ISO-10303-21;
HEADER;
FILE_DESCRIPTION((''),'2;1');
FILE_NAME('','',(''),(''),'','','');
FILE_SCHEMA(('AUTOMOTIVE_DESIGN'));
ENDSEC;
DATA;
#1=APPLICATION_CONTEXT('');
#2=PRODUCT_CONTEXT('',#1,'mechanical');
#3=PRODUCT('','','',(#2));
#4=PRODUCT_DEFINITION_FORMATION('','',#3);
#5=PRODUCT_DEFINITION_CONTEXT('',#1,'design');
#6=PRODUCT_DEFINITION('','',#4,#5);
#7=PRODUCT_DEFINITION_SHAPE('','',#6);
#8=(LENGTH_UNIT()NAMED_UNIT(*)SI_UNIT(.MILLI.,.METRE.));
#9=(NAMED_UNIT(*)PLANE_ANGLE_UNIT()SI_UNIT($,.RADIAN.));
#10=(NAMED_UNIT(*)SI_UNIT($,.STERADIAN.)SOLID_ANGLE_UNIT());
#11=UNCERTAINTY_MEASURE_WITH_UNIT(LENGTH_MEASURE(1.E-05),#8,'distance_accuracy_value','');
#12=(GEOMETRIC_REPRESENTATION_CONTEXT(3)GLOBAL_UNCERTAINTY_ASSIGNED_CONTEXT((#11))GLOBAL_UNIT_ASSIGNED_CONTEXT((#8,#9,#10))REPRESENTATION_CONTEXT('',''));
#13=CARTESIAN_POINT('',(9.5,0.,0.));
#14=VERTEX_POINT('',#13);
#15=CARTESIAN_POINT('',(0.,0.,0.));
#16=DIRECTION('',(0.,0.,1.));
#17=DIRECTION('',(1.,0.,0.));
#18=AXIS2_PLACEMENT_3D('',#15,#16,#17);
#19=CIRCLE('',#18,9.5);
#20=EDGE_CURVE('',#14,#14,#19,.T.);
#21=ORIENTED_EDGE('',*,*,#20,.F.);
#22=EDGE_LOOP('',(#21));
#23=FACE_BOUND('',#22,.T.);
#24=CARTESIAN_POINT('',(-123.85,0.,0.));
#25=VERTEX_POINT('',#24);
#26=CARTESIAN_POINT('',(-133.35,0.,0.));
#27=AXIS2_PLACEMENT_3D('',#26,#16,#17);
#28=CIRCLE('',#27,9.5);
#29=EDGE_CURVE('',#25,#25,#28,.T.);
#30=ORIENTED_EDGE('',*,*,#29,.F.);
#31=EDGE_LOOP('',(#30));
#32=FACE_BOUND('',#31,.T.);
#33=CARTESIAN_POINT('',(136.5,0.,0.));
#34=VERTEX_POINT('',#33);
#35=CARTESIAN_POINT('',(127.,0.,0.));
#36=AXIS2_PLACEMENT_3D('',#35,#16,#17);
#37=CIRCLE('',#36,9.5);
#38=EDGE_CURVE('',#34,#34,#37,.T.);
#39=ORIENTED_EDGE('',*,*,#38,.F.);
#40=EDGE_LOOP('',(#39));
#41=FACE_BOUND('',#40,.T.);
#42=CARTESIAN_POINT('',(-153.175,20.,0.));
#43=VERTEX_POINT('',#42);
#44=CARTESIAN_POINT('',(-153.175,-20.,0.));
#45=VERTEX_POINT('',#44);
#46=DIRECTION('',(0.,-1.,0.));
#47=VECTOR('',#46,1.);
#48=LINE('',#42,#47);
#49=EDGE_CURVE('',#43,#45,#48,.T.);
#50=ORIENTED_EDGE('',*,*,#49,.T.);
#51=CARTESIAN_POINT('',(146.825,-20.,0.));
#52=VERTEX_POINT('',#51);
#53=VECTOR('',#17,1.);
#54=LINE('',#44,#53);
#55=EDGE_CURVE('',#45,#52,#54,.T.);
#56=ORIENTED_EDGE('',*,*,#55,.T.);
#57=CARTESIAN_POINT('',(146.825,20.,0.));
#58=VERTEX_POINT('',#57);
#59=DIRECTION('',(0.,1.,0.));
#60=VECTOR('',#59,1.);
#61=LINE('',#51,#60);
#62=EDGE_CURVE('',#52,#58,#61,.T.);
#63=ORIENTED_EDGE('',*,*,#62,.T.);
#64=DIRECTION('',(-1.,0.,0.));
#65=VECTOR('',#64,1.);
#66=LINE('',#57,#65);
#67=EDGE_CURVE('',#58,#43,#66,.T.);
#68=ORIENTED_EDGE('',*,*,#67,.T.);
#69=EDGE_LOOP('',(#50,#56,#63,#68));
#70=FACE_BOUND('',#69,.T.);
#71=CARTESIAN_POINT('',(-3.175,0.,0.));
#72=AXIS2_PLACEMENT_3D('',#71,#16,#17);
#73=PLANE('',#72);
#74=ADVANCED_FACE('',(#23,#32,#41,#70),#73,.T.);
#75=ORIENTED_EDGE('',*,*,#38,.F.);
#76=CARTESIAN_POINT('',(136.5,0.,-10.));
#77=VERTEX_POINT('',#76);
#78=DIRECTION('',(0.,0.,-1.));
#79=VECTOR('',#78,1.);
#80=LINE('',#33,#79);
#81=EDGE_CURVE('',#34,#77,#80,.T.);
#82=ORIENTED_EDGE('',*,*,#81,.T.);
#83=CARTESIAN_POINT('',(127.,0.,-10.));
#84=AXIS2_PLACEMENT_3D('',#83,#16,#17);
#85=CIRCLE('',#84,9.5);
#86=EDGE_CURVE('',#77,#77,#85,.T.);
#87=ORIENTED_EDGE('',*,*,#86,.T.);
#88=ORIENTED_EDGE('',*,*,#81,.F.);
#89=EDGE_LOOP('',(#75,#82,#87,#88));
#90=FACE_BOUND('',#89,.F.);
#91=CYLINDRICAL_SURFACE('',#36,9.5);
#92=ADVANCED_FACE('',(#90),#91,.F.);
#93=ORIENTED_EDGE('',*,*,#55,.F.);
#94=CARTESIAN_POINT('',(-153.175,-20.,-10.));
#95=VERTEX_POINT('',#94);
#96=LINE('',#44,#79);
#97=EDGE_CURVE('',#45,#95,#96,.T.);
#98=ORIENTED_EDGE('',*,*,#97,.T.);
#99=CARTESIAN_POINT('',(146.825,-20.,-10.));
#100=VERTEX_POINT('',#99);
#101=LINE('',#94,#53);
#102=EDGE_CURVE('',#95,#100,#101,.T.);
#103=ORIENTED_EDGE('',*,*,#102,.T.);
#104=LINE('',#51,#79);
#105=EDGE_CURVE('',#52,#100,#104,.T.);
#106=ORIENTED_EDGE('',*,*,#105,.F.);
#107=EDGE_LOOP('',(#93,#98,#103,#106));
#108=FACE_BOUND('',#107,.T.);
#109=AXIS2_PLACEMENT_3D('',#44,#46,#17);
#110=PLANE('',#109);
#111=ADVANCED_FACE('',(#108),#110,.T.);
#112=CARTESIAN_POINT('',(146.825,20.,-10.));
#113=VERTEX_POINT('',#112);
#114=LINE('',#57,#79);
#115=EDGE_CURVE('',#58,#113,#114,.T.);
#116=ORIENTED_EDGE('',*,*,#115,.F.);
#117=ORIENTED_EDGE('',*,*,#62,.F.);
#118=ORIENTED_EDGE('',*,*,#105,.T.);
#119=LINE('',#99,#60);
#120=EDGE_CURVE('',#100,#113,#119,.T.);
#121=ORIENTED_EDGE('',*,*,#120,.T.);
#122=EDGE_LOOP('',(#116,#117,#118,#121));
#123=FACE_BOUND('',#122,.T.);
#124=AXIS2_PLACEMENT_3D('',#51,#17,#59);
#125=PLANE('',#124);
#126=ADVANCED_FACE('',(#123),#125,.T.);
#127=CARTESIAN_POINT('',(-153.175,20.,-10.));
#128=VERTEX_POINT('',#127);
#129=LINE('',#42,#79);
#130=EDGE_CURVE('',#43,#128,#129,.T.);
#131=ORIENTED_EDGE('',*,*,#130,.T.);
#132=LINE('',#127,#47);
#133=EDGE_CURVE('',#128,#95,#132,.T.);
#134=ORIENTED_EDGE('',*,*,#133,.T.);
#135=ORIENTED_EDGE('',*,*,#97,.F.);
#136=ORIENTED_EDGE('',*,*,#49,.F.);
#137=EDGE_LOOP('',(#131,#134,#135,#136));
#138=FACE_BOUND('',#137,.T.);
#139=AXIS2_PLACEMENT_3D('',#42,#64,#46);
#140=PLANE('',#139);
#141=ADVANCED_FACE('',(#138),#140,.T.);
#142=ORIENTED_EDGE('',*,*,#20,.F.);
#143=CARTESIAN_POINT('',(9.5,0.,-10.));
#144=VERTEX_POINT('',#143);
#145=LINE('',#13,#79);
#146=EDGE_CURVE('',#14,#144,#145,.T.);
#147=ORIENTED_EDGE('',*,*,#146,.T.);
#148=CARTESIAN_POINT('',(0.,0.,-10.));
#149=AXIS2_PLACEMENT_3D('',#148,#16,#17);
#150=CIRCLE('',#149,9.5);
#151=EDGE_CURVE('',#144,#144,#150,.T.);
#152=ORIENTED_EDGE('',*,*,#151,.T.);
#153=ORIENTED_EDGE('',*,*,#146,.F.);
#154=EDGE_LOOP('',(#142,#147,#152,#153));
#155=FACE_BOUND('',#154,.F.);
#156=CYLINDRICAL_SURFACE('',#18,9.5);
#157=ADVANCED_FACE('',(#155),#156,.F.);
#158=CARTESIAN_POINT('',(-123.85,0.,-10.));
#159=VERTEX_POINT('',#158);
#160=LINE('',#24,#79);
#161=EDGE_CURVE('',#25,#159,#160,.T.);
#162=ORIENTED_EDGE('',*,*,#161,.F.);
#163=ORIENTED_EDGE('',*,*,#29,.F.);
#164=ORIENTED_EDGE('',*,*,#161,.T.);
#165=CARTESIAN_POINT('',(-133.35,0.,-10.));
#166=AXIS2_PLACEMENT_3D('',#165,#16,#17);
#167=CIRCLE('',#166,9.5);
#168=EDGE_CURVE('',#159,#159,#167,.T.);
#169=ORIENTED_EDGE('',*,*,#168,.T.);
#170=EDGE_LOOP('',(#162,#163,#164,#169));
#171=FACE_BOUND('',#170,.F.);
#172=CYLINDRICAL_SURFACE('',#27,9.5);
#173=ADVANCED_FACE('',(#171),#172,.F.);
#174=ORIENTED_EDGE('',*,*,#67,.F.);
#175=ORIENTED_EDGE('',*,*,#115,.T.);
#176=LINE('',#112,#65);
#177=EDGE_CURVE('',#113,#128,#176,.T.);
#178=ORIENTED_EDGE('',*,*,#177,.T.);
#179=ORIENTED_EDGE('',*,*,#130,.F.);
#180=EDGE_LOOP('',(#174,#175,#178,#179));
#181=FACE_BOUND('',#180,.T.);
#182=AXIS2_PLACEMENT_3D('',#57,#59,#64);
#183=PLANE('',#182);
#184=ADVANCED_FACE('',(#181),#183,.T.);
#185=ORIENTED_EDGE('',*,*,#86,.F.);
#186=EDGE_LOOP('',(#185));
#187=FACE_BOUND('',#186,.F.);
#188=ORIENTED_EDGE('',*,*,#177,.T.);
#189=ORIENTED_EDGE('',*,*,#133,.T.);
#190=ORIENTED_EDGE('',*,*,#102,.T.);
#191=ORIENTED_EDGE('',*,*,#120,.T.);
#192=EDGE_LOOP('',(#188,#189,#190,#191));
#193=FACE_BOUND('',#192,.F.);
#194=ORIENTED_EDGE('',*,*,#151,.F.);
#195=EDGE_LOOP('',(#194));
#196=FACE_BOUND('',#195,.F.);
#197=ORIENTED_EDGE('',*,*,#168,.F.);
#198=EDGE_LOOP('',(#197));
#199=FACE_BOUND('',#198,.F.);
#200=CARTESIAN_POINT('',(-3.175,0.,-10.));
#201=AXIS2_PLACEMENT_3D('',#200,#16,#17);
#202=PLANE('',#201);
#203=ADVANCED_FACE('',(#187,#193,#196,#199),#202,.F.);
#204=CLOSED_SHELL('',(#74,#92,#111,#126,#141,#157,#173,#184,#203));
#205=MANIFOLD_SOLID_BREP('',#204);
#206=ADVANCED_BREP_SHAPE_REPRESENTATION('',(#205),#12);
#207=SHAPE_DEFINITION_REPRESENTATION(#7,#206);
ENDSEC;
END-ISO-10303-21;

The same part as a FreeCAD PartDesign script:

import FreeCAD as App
import Part
import Sketcher
from FreeCAD import Vector
Q = App.Units.Quantity

doc = App.newDocument("Part")
params = doc.addObject("Spreadsheet::Sheet", "Params")
for row, (alias, value) in enumerate([
    ("sketch1_diameter", "19 mm"),
    ("sketch1_width", "300 mm"),
    ("sketch1_height", "40 mm"),
    ("pad1_length", "10 mm"),
], start=1):
    params.set(f"A{row}", alias)
    params.set(f"B{row}", "=" + value)
    params.setAlias(f"B{row}", alias)

body = doc.addObject("PartDesign::Body", "Body")

sketch1 = body.newObject("Sketcher::SketchObject", "Sketch")
sketch1.AttachmentSupport = (doc.getObject("XY_Plane"), [""])
sketch1.MapMode = "FlatFace"
sketch1.addGeometry([
    Part.LineSegment(Vector(-153, -20, 0), Vector(147, -20, 0)),
    Part.LineSegment(Vector(147, -20, 0), Vector(147, 20, 0)),
    Part.LineSegment(Vector(147, 20, 0), Vector(-153, 20, 0)),
    Part.LineSegment(Vector(-153, 20, 0), Vector(-153, -20, 0)),
    Part.Circle(Vector(-133, 0, 0), Vector(0, 0, 1), 10),
    Part.Circle(Vector(0, 0, 0), Vector(0, 0, 1), 10),
    Part.Circle(Vector(127, 0, 0), Vector(0, 0, 1), 10),
], False)
sketch1.addConstraint([
    Sketcher.Constraint("Coincident", 0, 2, 1, 1),
    Sketcher.Constraint("Coincident", 1, 2, 2, 1),
    Sketcher.Constraint("Coincident", 2, 2, 3, 1),
    Sketcher.Constraint("Coincident", 3, 2, 0, 1),
    Sketcher.Constraint("Horizontal", 0),
    Sketcher.Constraint("Vertical", 1),
    Sketcher.Constraint("Horizontal", 2),
    Sketcher.Constraint("Vertical", 3),
    Sketcher.Constraint("Coincident", 5, 3, -1, 1),
    Sketcher.Constraint("Equal", 4, 5),
    Sketcher.Constraint("Equal", 5, 6),
    Sketcher.Constraint("PointOnObject", 4, 3, -1),
    Sketcher.Constraint("PointOnObject", 6, 3, -1),
    Sketcher.Constraint("Diameter", 4, Q("19 mm")),
    Sketcher.Constraint("DistanceX", 0, 1, 0, 2, Q("300 mm")),
    Sketcher.Constraint("DistanceY", 1, 1, 1, 2, Q("40 mm")),
    Sketcher.Constraint("DistanceX", -1, 1, 6, 3, Q("127 mm")),
    Sketcher.Constraint("DistanceY", 0, 2, -1, 1, Q("20 mm")),
    Sketcher.Constraint("DistanceX", 4, 3, -1, 1, Q("133.35 mm")),
    Sketcher.Constraint("DistanceX", -1, 1, 0, 2, Q("146.825 mm")),
])
sketch1.setExpression("Constraints[13]", "Params.sketch1_diameter")
sketch1.setExpression("Constraints[14]", "Params.sketch1_width")
sketch1.setExpression("Constraints[15]", "Params.sketch1_height")
pad1 = body.newObject("PartDesign::Pad", "Pad")
pad1.Profile = sketch1
pad1.setExpression("Length", "Params.pad1_length")
pad1.Reversed = True

doc.recompute()
